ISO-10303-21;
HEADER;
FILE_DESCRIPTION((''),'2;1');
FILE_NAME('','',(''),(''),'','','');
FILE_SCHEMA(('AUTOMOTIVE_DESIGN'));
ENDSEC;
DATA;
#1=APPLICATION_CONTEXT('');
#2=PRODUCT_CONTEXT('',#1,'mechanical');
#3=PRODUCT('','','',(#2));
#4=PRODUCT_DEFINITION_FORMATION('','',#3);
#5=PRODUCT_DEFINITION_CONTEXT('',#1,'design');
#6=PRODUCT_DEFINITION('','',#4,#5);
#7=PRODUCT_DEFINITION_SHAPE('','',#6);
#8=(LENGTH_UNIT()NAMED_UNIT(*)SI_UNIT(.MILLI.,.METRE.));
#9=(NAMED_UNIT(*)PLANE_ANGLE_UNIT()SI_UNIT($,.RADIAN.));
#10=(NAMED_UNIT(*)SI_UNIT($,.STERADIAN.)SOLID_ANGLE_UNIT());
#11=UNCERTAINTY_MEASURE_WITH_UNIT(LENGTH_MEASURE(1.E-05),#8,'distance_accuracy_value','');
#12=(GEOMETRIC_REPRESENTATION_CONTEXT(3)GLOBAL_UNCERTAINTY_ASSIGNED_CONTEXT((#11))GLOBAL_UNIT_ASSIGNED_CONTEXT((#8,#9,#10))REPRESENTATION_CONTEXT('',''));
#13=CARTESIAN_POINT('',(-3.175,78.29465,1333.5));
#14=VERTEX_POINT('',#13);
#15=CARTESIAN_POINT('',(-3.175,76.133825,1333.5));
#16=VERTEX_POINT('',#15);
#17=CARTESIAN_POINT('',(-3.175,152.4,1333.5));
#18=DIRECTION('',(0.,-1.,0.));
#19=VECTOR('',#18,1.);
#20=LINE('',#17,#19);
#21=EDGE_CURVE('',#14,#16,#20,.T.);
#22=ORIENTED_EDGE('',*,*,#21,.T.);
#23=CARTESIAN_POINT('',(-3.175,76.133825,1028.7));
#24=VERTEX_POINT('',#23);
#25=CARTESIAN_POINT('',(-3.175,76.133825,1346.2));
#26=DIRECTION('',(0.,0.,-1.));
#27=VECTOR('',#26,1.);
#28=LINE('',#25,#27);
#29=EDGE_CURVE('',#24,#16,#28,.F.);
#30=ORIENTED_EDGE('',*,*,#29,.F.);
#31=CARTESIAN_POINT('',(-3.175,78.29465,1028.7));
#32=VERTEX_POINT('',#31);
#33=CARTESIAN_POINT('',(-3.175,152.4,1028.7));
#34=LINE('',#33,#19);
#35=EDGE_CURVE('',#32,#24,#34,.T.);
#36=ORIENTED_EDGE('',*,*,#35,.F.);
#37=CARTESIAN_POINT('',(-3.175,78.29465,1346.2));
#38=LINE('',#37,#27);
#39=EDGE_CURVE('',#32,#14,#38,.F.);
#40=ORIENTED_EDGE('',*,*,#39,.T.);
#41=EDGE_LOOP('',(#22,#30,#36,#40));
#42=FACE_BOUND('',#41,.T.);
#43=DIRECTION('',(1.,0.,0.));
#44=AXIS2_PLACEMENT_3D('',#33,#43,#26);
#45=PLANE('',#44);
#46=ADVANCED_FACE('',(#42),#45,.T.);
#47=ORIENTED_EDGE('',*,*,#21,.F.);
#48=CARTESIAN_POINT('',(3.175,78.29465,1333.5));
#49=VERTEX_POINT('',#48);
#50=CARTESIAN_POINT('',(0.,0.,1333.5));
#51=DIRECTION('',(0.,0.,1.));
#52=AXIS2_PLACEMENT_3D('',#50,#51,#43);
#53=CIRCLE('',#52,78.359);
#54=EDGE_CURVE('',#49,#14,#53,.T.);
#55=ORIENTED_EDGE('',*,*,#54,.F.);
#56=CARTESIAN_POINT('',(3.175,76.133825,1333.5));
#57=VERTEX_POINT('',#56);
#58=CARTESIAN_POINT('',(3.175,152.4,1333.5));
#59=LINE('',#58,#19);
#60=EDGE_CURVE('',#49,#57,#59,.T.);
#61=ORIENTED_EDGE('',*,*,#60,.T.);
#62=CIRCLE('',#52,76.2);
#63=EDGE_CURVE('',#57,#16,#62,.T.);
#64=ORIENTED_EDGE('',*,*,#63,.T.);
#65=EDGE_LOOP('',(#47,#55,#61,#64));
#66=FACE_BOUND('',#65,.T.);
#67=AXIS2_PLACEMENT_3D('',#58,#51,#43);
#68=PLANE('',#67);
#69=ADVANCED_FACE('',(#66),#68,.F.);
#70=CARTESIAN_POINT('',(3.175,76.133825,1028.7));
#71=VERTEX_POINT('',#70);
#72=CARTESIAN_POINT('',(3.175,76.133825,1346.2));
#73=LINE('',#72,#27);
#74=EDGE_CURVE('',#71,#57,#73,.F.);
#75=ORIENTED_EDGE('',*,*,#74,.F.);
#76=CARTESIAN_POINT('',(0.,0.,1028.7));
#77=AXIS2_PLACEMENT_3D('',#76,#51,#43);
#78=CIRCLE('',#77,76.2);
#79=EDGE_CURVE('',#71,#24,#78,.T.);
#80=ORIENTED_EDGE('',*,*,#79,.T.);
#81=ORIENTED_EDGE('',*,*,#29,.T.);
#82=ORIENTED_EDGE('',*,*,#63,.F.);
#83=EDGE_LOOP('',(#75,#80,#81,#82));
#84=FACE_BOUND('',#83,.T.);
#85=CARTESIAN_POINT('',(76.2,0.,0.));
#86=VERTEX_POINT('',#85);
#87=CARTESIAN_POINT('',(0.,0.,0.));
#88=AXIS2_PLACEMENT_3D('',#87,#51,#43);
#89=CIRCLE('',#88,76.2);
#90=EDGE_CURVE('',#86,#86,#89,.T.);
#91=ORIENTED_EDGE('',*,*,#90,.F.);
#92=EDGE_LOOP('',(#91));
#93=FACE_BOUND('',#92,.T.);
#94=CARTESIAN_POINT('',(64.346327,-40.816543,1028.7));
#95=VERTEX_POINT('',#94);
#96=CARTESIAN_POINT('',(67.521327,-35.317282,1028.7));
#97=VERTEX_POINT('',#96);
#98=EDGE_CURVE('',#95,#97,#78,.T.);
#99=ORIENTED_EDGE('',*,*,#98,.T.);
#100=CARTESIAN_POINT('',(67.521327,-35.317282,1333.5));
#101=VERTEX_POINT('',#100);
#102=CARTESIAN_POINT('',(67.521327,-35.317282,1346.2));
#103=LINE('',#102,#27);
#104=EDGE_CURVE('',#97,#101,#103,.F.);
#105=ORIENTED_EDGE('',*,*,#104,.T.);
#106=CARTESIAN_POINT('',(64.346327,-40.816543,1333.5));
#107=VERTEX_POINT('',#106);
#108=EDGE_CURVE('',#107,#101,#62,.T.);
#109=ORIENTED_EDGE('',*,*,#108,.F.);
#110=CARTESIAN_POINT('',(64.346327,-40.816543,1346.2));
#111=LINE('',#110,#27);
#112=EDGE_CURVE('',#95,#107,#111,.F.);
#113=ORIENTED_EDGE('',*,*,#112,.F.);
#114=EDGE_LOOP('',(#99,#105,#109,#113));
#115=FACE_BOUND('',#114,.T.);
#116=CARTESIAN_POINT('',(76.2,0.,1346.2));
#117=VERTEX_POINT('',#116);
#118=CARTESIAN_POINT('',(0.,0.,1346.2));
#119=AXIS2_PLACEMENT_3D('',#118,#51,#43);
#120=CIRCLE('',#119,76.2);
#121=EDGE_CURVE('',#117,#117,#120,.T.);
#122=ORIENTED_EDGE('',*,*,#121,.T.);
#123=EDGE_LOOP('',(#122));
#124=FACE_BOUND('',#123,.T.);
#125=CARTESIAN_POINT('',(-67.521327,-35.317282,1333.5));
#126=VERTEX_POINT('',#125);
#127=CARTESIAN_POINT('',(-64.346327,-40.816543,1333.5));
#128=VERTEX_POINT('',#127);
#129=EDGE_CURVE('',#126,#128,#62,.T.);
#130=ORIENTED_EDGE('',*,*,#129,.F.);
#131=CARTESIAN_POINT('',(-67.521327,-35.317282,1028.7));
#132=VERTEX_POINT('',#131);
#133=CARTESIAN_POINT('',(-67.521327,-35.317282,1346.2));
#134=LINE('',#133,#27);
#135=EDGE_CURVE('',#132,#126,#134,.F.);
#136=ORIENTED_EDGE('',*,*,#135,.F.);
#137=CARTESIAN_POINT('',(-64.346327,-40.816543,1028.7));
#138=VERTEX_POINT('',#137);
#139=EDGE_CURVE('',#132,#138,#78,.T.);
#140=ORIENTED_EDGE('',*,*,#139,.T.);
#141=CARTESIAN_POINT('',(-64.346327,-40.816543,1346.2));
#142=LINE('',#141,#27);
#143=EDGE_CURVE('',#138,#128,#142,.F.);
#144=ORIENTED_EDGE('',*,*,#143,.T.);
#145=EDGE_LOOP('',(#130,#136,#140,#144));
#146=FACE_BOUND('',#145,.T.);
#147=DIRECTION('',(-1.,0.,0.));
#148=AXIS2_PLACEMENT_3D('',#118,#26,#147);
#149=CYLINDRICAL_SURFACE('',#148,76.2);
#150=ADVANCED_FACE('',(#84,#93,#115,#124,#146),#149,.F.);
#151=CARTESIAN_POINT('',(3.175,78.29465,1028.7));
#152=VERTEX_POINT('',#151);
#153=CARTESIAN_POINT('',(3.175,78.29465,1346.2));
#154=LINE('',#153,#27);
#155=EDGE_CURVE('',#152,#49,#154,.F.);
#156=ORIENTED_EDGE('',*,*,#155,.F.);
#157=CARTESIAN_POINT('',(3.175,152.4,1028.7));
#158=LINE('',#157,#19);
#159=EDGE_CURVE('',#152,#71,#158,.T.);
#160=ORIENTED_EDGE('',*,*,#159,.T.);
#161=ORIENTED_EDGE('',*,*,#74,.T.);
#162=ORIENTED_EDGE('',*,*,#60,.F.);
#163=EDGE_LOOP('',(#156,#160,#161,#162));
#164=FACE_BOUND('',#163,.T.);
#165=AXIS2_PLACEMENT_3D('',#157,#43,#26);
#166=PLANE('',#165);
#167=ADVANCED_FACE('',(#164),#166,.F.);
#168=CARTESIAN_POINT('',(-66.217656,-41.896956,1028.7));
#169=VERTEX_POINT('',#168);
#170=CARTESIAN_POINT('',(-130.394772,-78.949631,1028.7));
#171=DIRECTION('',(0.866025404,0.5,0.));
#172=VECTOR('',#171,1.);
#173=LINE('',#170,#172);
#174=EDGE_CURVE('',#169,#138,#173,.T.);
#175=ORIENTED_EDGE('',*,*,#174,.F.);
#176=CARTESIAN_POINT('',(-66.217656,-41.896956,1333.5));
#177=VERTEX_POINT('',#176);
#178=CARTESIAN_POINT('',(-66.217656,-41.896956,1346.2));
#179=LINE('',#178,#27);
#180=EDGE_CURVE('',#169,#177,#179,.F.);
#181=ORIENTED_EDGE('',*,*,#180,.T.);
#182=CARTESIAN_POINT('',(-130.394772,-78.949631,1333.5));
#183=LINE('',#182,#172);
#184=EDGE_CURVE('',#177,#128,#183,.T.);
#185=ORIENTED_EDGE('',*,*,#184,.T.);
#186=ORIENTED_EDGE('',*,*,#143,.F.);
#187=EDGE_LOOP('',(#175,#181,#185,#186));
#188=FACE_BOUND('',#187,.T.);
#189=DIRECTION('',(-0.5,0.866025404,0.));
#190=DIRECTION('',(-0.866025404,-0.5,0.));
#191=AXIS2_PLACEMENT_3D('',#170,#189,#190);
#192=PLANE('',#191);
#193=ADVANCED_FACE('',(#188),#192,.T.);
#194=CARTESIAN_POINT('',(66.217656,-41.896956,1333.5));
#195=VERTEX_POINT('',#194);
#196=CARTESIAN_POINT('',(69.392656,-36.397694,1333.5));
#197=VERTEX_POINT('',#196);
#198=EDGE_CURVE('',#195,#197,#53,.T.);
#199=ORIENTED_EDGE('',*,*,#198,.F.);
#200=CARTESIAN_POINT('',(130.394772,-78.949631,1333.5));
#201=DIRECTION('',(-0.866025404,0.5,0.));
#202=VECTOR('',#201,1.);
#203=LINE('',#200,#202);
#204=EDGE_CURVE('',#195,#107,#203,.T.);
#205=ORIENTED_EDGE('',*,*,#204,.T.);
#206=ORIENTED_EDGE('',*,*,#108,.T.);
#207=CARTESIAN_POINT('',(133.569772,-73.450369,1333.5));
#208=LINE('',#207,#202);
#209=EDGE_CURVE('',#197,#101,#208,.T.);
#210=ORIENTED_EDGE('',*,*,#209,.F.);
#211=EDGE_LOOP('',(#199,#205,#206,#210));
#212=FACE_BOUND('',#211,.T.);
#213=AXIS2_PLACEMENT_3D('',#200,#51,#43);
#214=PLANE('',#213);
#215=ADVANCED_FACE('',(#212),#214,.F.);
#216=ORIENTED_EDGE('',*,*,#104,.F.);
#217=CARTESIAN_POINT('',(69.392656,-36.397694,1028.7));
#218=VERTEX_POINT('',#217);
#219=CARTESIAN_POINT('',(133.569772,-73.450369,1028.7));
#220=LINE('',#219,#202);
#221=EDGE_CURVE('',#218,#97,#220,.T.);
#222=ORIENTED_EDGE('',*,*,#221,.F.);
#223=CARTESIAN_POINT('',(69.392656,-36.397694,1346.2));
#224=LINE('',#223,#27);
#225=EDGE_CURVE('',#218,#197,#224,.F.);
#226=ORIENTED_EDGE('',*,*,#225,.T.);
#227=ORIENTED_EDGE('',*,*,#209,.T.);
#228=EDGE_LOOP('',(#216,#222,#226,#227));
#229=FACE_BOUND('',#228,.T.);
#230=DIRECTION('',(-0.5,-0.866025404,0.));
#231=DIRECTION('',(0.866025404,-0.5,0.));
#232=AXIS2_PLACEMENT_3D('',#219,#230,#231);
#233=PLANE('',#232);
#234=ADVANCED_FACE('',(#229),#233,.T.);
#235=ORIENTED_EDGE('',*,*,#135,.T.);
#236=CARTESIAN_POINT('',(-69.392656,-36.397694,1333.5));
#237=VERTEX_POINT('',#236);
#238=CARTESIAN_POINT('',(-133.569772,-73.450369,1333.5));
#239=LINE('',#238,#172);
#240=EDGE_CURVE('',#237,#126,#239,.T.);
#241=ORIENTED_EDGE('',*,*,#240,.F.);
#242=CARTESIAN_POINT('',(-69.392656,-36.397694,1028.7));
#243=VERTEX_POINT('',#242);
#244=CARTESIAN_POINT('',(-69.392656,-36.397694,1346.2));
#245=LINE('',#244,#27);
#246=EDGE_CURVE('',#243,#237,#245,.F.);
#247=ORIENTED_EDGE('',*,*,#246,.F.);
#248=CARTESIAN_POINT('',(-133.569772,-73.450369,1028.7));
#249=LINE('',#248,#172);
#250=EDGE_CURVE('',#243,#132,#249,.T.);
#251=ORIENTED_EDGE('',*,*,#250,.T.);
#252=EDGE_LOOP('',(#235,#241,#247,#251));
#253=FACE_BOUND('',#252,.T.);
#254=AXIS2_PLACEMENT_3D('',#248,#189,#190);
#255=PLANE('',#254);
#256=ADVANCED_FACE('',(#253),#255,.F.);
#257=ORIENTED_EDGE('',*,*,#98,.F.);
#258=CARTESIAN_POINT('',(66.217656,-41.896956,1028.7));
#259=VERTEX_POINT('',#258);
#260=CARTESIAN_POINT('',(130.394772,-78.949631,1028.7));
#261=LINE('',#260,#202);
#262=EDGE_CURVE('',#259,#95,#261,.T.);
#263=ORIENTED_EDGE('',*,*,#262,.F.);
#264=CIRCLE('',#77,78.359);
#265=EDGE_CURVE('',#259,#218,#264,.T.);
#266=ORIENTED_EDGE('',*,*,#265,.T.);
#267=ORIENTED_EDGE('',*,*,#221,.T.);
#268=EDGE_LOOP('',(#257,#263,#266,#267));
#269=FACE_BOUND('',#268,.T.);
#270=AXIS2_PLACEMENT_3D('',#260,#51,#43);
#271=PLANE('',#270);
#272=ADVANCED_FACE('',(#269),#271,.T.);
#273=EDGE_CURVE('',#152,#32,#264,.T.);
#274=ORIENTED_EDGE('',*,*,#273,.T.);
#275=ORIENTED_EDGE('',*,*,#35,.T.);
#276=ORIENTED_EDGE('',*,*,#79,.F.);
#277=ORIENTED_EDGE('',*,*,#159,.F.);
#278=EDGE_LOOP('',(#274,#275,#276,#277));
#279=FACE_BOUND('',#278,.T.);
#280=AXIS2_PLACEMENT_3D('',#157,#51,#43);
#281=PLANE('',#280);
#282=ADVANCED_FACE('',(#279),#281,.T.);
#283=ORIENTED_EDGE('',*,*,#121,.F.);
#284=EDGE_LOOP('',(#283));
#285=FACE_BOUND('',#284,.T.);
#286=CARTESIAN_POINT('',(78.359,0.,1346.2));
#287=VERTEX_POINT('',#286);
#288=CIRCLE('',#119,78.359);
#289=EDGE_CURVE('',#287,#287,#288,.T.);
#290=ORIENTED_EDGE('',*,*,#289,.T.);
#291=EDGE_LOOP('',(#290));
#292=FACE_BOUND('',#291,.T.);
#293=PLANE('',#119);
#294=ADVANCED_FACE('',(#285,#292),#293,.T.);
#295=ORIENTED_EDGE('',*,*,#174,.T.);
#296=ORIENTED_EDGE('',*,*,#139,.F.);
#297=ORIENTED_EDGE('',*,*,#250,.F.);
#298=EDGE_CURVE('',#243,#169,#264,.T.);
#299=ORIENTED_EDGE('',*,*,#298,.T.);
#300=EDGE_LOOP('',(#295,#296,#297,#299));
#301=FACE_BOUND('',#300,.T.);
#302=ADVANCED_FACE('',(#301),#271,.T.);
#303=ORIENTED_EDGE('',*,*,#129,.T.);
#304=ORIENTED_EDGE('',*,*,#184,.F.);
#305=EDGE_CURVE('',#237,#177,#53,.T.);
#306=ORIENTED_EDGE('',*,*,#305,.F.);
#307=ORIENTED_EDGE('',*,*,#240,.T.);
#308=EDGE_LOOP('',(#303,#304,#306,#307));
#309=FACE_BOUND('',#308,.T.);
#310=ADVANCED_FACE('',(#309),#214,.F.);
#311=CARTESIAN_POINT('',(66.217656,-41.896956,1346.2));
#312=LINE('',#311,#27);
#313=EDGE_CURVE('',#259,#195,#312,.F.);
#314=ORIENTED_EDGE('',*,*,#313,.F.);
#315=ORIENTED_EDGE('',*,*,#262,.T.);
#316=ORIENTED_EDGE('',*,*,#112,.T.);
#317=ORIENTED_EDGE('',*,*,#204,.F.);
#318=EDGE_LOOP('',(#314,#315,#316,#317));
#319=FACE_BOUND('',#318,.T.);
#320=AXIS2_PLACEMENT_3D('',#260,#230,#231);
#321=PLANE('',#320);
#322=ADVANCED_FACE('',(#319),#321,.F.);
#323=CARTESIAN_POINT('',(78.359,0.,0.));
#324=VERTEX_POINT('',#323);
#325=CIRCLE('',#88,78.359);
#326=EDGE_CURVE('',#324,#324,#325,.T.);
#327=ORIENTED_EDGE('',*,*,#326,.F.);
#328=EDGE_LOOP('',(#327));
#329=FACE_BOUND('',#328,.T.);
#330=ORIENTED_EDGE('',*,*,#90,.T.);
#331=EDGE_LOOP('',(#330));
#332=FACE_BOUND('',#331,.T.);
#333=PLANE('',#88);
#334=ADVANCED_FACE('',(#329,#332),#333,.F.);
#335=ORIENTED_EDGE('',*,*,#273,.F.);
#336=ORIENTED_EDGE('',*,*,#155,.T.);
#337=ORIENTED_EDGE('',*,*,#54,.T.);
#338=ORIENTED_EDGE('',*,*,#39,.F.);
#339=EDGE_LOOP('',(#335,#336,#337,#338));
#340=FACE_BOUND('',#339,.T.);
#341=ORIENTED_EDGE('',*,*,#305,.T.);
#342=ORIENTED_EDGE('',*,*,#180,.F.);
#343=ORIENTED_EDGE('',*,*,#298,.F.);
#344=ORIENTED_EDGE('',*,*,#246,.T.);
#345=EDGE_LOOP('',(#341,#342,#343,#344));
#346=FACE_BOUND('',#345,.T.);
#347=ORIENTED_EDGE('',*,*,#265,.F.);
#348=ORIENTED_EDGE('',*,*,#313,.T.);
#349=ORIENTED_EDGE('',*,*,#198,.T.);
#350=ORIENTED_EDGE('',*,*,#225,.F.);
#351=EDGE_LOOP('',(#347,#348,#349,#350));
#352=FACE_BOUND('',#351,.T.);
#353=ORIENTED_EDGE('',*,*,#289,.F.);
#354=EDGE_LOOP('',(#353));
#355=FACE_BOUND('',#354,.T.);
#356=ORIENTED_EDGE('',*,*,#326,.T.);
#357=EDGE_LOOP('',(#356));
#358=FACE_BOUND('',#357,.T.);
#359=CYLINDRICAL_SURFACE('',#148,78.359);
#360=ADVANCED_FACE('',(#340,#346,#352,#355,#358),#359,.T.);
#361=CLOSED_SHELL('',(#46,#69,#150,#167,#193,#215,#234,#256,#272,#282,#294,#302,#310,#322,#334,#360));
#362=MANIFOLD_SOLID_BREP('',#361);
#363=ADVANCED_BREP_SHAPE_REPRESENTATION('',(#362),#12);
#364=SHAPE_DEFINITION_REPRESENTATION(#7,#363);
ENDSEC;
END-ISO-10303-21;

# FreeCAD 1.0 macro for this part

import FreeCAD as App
import Part
import Sketcher

V = App.Vector
Q = App.Units.Quantity

doc = App.newDocument("Part")
body = doc.addObject("PartDesign::Body", "Body")

sketch1 = body.newObject("Sketcher::SketchObject", "Sketch")
sketch1.AttachmentSupport = (doc.getObject("XY_Plane"), [""])
sketch1.MapMode = "FlatFace"
sketch1.addGeometry([
    Part.Circle(V(0, 0, 0), V(0, 0, 1), 78),
    Part.Circle(V(0, 0, 0), V(0, 0, 1), 76),
], False)
sketch1.addConstraint([
    Sketcher.Constraint("Coincident", 0, 3, -1, 1),
    Sketcher.Constraint("Coincident", 1, 3, -1, 1),
    Sketcher.Constraint("Diameter", 1, Q("6 in")),
    Sketcher.Constraint("Diameter", 0, Q("6.17 in")),
])
pad1 = body.newObject("PartDesign::Pad", "Pad")
pad1.Profile = sketch1
pad1.Length = Q("53 in")

sketch2 = body.newObject("Sketcher::SketchObject", "Sketch001")
sketch2.AttachmentSupport = (doc.getObject("XZ_Plane"), [""])
sketch2.MapMode = "FlatFace"
sketch2.addGeometry([
    Part.LineSegment(V(-3, 1029, 0), V(-3, 1334, 0)),
    Part.LineSegment(V(-3, 1334, 0), V(3, 1334, 0)),
    Part.LineSegment(V(3, 1334, 0), V(3, 1029, 0)),
    Part.LineSegment(V(3, 1029, 0), V(-3, 1029, 0)),
], False)
sketch2.addConstraint([
    Sketcher.Constraint("Coincident", 0, 2, 1, 1),
    Sketcher.Constraint("Coincident", 1, 2, 2, 1),
    Sketcher.Constraint("Coincident", 2, 2, 3, 1),
    Sketcher.Constraint("Coincident", 3, 2, 0, 1),
    Sketcher.Constraint("Vertical", 0),
    Sketcher.Constraint("Horizontal", 1),
    Sketcher.Constraint("Vertical", 2),
    Sketcher.Constraint("Horizontal", 3),
    Sketcher.Constraint("DistanceY", 0, 1, 0, 2, Q("12 in")),
    Sketcher.Constraint("DistanceX", 1, 1, 1, 2, Q("0.25 in")),
    Sketcher.Constraint("DistanceY", -1, 1, 0, 2, Q("52.5 in")),
    Sketcher.Constraint("DistanceX", 0, 2, -1, 1, Q("0.125 in")),
])
pocket1 = body.newObject("PartDesign::Pocket", "Pocket")
pocket1.Profile = sketch2
pocket1.Length = Q("6 in")
doc.recompute()

polarpattern = body.newObject("PartDesign::PolarPattern", "PolarPattern")
polarpattern.Originals = [pocket1]
polarpattern.Axis = (doc.getObject("Z_Axis"), [""])
polarpattern.Angle = 360
polarpattern.Occurrences = 3
body.Tip = polarpattern

doc.recompute()
